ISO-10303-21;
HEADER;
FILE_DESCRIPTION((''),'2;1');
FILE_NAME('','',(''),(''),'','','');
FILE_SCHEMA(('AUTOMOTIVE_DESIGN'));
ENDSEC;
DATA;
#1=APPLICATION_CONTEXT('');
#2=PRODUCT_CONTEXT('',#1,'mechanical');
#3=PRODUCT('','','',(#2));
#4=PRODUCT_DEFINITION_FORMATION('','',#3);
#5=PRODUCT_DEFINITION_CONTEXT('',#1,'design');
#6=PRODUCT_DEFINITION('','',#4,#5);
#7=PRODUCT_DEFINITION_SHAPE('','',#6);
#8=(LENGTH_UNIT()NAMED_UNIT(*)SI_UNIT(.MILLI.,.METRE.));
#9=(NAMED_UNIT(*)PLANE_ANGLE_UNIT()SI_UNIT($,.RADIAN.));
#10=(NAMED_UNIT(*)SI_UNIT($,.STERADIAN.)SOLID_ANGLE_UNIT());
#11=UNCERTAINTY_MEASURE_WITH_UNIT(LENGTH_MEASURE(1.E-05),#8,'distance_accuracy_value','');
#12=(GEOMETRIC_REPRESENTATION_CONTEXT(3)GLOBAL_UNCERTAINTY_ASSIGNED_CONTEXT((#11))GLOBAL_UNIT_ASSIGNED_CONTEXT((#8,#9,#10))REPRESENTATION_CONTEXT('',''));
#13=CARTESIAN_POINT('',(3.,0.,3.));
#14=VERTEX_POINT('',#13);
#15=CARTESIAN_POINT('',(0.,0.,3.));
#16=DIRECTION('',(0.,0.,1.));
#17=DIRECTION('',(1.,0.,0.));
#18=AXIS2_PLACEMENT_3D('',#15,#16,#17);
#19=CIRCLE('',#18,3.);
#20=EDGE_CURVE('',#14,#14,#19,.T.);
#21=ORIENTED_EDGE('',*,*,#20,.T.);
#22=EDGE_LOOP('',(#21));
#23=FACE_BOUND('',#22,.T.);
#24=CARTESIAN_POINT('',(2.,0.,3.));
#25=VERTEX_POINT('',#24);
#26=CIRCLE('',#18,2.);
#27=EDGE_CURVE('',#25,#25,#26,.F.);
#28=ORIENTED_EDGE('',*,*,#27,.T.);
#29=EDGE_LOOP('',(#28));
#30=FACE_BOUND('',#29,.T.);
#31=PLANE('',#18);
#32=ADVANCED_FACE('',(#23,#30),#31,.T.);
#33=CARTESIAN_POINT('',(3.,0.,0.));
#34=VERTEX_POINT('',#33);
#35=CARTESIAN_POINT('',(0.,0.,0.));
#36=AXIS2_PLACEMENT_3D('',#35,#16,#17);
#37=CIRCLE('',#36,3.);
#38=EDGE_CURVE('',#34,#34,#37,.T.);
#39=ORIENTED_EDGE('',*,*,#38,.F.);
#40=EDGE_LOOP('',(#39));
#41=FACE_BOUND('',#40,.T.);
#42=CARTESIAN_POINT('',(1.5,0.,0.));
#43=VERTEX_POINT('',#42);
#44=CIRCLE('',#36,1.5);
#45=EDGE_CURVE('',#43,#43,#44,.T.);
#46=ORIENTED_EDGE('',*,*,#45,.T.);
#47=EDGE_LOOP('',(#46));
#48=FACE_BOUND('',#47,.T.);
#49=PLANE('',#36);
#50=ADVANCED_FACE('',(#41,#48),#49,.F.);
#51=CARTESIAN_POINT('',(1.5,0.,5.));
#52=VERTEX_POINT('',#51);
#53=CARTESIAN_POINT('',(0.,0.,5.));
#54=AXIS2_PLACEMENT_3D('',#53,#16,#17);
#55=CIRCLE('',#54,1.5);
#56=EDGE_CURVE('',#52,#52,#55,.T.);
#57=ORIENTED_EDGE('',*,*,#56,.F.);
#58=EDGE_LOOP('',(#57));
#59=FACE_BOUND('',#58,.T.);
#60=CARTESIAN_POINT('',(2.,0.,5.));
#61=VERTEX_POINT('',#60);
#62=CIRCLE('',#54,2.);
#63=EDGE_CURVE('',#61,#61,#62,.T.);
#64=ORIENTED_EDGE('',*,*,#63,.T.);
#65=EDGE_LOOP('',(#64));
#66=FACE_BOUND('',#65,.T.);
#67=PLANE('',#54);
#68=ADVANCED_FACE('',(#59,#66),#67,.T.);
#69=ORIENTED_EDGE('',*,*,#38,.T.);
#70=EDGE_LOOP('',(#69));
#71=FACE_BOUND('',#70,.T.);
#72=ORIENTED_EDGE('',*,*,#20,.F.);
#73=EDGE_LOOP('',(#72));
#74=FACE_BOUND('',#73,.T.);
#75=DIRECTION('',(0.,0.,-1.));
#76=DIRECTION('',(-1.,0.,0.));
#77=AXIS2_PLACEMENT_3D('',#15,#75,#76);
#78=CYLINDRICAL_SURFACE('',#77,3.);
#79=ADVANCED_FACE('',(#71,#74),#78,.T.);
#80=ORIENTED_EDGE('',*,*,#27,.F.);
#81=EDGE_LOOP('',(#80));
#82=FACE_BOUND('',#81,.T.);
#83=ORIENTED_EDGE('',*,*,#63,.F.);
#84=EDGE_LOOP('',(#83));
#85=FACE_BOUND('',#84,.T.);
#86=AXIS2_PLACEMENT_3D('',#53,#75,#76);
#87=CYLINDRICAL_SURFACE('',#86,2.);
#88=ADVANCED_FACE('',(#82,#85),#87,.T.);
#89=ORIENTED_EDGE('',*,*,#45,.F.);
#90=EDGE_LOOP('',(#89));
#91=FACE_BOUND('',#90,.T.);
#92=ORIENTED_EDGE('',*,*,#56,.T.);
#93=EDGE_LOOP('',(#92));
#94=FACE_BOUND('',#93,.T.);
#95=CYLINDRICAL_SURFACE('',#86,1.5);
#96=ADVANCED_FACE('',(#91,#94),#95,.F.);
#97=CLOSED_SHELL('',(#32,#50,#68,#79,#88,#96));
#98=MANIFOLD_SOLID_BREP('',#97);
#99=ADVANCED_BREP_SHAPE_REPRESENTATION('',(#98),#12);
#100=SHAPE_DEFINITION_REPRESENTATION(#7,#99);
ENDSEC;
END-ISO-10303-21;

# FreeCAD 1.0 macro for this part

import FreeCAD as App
import Part
import Sketcher

V = App.Vector

doc = App.newDocument("Part")
params = doc.addObject("Spreadsheet::Sheet", "Params")
for row, (alias, value) in enumerate([
    ("sketch1_diameter", "6 mm"),
    ("pad1_length", "3 mm"),
    ("sketch2_diameter", "4 mm"),
    ("pad2_length", "5 mm"),
    ("sketch3_diameter", "3 mm"),
], start=1):
    params.set(f"A{row}", alias)
    params.set(f"B{row}", "=" + value)
    params.setAlias(f"B{row}", alias)

body = doc.addObject("PartDesign::Body", "Body")

# Sketch on XY plane
sketch1 = body.newObject("Sketcher::SketchObject", "Sketch")
sketch1.AttachmentSupport = (doc.getObject("XY_Plane"), [""])
sketch1.MapMode = "FlatFace"
sketch1.addGeometry(Part.Circle(V(0, 0, 0), V(0, 0, 1), 3), False)
sketch1.addConstraint([
    Sketcher.Constraint("Coincident", 0, 3, -1, 1),
    Sketcher.Constraint("Diameter", 0, 6.0),
])
sketch1.setExpression("Constraints[1]", "Params.sketch1_diameter")
pad1 = body.newObject("PartDesign::Pad", "Pad")
pad1.Profile = sketch1
pad1.setExpression("Length", "Params.pad1_length")

# Sketch on XY plane
sketch2 = body.newObject("Sketcher::SketchObject", "Sketch001")
sketch2.AttachmentSupport = (doc.getObject("XY_Plane"), [""])
sketch2.MapMode = "FlatFace"
sketch2.addGeometry(Part.Circle(V(0, 0, 0), V(0, 0, 1), 2), False)
sketch2.addConstraint([
    Sketcher.Constraint("Coincident", 0, 3, -1, 1),
    Sketcher.Constraint("Diameter", 0, 4.0),
])
sketch2.setExpression("Constraints[1]", "Params.sketch2_diameter")
pad2 = body.newObject("PartDesign::Pad", "Pad001")
pad2.Profile = sketch2
pad2.setExpression("Length", "Params.pad2_length")

# Sketch on XY plane
sketch3 = body.newObject("Sketcher::SketchObject", "Sketch002")
sketch3.AttachmentSupport = (doc.getObject("XY_Plane"), [""])
sketch3.MapMode = "FlatFace"
sketch3.addGeometry(Part.Circle(V(0, 0, 0), V(0, 0, 1), 1.5), False)
sketch3.addConstraint([
    Sketcher.Constraint("Coincident", 0, 3, -1, 1),
    Sketcher.Constraint("Diameter", 0, 3.0),
])
sketch3.setExpression("Constraints[1]", "Params.sketch3_diameter")
pocket1 = body.newObject("PartDesign::Pocket", "Pocket")
pocket1.Profile = sketch3
pocket1.Type = "ThroughAll"
pocket1.Reversed = True

doc.recompute()
